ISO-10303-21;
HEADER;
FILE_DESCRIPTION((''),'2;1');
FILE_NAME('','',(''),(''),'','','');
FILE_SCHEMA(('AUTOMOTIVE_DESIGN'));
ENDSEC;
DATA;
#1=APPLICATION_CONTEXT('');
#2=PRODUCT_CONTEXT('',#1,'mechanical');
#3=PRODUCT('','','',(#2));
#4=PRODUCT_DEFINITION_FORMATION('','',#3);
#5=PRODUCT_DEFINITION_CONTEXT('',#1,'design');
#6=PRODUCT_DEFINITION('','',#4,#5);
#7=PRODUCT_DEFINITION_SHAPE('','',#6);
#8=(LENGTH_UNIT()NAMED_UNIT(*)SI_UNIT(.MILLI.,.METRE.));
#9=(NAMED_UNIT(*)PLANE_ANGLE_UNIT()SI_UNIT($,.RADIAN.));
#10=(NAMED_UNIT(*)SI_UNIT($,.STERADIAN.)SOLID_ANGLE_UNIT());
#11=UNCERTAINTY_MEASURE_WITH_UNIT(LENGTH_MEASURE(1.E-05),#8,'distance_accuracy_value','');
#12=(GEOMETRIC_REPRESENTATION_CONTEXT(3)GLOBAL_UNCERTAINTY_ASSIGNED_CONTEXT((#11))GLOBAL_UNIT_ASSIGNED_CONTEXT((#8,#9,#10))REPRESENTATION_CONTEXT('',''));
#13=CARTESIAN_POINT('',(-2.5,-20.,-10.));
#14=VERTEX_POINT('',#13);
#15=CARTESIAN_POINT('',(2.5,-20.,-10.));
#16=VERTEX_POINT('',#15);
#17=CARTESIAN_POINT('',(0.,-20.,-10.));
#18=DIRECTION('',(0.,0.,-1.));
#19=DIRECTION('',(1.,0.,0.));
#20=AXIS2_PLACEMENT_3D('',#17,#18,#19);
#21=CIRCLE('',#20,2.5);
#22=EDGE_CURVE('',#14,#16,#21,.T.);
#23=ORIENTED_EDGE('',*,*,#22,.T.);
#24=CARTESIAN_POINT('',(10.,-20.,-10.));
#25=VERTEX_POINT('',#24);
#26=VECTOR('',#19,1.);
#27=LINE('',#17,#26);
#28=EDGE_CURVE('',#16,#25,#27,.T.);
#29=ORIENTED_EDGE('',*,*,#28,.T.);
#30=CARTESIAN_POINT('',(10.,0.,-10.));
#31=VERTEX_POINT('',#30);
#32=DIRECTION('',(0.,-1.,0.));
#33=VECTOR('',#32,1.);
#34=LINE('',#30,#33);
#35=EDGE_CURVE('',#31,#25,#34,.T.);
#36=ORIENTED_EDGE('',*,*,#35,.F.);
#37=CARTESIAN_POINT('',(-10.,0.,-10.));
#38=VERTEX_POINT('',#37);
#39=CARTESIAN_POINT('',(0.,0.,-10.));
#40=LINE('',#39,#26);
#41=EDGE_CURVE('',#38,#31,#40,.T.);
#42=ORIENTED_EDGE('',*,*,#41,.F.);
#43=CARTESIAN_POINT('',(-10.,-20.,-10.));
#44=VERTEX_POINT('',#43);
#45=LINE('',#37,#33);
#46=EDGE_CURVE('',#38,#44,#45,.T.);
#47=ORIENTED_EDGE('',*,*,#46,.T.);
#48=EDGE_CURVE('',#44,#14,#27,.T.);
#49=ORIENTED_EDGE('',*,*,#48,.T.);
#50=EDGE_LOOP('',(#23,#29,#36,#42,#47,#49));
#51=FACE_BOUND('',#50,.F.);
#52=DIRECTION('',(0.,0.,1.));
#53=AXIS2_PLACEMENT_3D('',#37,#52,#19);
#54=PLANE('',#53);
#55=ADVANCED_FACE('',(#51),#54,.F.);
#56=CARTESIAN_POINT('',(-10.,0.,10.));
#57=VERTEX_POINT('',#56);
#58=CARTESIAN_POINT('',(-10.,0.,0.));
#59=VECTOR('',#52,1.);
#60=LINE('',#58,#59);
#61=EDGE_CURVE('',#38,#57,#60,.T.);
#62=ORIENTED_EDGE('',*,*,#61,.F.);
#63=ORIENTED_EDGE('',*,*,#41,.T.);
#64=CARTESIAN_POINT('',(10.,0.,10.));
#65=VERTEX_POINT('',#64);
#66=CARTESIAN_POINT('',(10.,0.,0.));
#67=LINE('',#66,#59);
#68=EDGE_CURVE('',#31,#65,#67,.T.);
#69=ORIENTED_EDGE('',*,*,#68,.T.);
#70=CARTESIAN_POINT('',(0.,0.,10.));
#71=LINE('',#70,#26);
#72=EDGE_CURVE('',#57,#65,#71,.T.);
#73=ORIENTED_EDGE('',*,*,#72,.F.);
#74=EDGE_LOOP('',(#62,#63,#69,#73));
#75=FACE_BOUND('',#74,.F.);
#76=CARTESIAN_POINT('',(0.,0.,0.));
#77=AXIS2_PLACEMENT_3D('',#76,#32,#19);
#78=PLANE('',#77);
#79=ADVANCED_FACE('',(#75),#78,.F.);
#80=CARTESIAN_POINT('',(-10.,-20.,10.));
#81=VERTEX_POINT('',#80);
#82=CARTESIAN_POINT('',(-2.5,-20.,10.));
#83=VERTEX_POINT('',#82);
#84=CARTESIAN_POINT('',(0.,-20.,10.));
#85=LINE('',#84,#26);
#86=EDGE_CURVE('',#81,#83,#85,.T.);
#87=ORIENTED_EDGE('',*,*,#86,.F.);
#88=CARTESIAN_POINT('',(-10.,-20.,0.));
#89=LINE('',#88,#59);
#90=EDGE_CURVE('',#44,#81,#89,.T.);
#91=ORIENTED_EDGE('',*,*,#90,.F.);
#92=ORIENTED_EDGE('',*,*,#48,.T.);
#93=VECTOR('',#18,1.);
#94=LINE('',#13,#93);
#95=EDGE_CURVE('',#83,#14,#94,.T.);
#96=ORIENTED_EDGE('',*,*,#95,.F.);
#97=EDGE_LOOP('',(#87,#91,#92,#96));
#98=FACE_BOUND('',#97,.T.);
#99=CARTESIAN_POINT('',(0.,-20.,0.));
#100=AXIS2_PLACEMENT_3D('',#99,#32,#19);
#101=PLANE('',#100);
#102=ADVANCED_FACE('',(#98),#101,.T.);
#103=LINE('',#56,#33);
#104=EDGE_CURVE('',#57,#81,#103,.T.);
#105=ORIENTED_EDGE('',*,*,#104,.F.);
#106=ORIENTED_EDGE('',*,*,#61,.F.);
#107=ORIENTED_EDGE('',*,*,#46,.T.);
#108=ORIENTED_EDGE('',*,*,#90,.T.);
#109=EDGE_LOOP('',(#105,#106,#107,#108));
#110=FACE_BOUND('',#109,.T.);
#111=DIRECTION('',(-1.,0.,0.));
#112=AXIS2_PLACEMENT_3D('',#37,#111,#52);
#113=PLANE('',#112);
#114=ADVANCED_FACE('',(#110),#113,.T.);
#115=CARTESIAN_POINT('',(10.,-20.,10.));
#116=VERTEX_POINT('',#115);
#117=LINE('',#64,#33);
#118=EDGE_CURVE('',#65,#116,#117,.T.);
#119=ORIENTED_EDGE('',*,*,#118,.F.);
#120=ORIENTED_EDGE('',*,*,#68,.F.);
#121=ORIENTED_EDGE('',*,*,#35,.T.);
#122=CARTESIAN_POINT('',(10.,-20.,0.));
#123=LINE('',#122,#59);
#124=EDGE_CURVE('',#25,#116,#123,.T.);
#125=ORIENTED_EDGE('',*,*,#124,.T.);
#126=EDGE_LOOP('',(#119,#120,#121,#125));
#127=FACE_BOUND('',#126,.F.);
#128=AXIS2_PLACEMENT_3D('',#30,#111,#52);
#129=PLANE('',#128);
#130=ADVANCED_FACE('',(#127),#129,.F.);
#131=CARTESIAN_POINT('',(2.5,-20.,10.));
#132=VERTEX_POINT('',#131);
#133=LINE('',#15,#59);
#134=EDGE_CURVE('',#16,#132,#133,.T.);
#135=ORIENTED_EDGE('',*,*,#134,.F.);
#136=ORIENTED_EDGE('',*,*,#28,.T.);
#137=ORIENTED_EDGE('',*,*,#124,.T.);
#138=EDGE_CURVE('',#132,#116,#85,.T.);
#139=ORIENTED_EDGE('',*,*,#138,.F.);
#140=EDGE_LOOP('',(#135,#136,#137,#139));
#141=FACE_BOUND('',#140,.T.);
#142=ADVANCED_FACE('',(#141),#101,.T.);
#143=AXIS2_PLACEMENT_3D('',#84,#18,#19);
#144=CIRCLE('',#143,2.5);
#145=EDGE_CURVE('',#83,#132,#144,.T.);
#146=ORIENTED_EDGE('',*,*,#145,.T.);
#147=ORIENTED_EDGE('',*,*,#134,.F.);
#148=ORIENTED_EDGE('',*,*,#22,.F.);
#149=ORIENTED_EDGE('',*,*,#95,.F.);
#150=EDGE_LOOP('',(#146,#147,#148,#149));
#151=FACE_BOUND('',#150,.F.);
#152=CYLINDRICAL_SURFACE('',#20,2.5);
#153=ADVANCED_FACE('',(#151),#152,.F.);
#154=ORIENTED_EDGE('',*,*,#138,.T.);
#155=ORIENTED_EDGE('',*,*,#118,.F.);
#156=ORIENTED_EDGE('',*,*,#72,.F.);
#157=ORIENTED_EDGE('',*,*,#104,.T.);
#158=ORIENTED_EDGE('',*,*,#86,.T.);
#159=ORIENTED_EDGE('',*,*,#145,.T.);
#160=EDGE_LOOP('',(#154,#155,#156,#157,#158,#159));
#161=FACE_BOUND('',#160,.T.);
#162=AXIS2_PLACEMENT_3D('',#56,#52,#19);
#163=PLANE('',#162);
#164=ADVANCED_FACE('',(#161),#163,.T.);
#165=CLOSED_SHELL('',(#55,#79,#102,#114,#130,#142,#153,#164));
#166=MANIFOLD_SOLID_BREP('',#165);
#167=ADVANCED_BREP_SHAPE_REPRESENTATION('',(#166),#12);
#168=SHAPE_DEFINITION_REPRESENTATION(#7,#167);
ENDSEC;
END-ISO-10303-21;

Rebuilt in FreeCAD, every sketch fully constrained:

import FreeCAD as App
import Part
import Sketcher
from FreeCAD import Vector


def add_polygon(sketch, points):
    """Adds a closed chain of lines whose ends are joined by coincident constraints."""
    first, n = sketch.GeometryCount, len(points)
    for a, b in zip(points, points[1:] + points[:1]):
        sketch.addGeometry(Part.LineSegment(App.Vector(*a, 0), App.Vector(*b, 0)), False)
    for i in range(n):
        sketch.addConstraint(Sketcher.Constraint("Coincident", first + i, 2, first + (i + 1) % n, 1))

doc = App.newDocument("Part")
body = doc.addObject("PartDesign::Body", "Body")

sketch1 = doc.addObject("Sketcher::SketchObject", "Sketch")
body.addObject(sketch1)
sketch1.AttachmentSupport = (doc.XZ_Plane, [""])
sketch1.MapMode = "FlatFace"
add_polygon(sketch1, [(-10, 10), (-10, -10), (10, -10), (10, 10)])
sketch1.addConstraint([
    Sketcher.Constraint("Vertical", 0),
    Sketcher.Constraint("Horizontal", 1),
    Sketcher.Constraint("Vertical", 2),
    Sketcher.Constraint("Horizontal", 3),
    Sketcher.Constraint("Symmetric", 0, 2, 2, 2, -1, 1),
    Sketcher.Constraint("Equal", 3, 0),
    Sketcher.Constraint("DistanceX", 1, 1, 1, 2, 20.0),
])
pad1 = doc.addObject("PartDesign::Pad", "Pad")
body.addObject(pad1)
pad1.Profile = sketch1
pad1.Length = 20

sketch2 = doc.addObject("Sketcher::SketchObject", "Sketch001")
body.addObject(sketch2)
sketch2.AttachmentSupport = (doc.XY_Plane, [""])
sketch2.MapMode = "FlatFace"
sketch2.AttachmentOffset = App.Placement(Vector(0, 0, -10), App.Rotation())
sketch2.addGeometry(Part.Circle(Vector(0, -20, 0), Vector(0, 0, 1), 2.5), False)
sketch2.addConstraint([
    Sketcher.Constraint("PointOnObject", 0, 3, -2),
    Sketcher.Constraint("Diameter", 0, 5.0),
    Sketcher.Constraint("DistanceY", 0, 3, -1, 1, 20.0),
])
pocket1 = doc.addObject("PartDesign::Pocket", "Pocket")
body.addObject(pocket1)
pocket1.Profile = sketch2
pocket1.Length = 25
pocket1.Reversed = True

doc.recompute()
